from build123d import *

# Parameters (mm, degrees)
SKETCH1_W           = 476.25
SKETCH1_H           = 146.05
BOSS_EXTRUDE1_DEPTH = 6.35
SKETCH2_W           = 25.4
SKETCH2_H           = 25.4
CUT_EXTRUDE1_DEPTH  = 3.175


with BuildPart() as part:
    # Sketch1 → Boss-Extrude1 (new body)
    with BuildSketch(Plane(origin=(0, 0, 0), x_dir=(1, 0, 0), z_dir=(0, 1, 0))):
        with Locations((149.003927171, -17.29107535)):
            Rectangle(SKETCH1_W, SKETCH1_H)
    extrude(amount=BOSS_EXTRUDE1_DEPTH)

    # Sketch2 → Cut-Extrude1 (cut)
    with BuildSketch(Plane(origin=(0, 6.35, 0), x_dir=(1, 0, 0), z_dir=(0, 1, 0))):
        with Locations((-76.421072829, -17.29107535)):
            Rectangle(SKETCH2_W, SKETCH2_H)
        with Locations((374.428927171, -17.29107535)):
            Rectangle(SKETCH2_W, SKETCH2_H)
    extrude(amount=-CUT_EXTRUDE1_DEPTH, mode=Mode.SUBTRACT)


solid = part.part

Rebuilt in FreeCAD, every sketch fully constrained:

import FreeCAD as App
import Part
import Sketcher
Q = App.Units.Quantity


def add_polygon(sketch, points):
    """Adds a closed chain of lines whose ends are joined by coincident constraints."""
    first, n = sketch.GeometryCount, len(points)
    for a, b in zip(points, points[1:] + points[:1]):
        sketch.addGeometry(Part.LineSegment(App.Vector(*a, 0), App.Vector(*b, 0)), False)
    for i in range(n):
        sketch.addConstraint(Sketcher.Constraint("Coincident", first + i, 2, first + (i + 1) % n, 1))

doc = App.newDocument("Part")
body = doc.addObject("PartDesign::Body", "Body")

# Sketch on XZ plane
sketch1 = body.newObject("Sketcher::SketchObject", "Sketch")
sketch1.AttachmentSupport = (doc.getObject("XZ_Plane"), [""])
sketch1.MapMode = "FlatFace"
add_polygon(sketch1, [(-89, -56), (-89, 90), (387, 90), (387, -56)])  # lines 0-3
sketch1.addConstraint(Sketcher.Constraint("Vertical", 0))
sketch1.addConstraint(Sketcher.Constraint("Horizontal", 1))
sketch1.addConstraint(Sketcher.Constraint("Vertical", 2))
sketch1.addConstraint(Sketcher.Constraint("Horizontal", 3))
sketch1.addConstraint(Sketcher.Constraint("DistanceX", 1, 1, 1, 2, Q("18.75 in")))
sketch1.addConstraint(Sketcher.Constraint("DistanceY", 0, 1, 0, 2, Q("5.75 in")))
sketch1.addConstraint(Sketcher.Constraint("DistanceX", 0, 2, -1, 1, 89.121073))
sketch1.addConstraint(Sketcher.Constraint("DistanceY", -1, 1, 0, 2, 90.316075))
pad1 = body.newObject("PartDesign::Pad", "Pad")
pad1.Profile = sketch1
pad1.Length = Q("0.25 in")
pad1.Reversed = True

# Sketch on XZ plane
sketch2 = body.newObject("Sketcher::SketchObject", "Sketch001")
sketch2.AttachmentSupport = (doc.getObject("XZ_Plane"), [""])
sketch2.MapMode = "FlatFace"
sketch2.AttachmentOffset = App.Placement(App.Vector(0, 0, -0.25 * 25.4), App.Rotation())
add_polygon(sketch2, [(-89, 5), (-89, 30), (-64, 30), (-64, 5)])  # lines 0-3
add_polygon(sketch2, [(362, 5), (362, 30), (387, 30), (387, 5)])  # lines 4-7
sketch2.addConstraint(Sketcher.Constraint("Vertical", 0))
sketch2.addConstraint(Sketcher.Constraint("Horizontal", 1))
sketch2.addConstraint(Sketcher.Constraint("Vertical", 2))
sketch2.addConstraint(Sketcher.Constraint("Horizontal", 3))
sketch2.addConstraint(Sketcher.Constraint("Vertical", 4))
sketch2.addConstraint(Sketcher.Constraint("Horizontal", 5))
sketch2.addConstraint(Sketcher.Constraint("Vertical", 6))
sketch2.addConstraint(Sketcher.Constraint("Horizontal", 7))
sketch2.addConstraint(Sketcher.Constraint("Horizontal", 1, 2, 4, 2))
sketch2.addConstraint(Sketcher.Constraint("Horizontal", 3, 2, 6, 2))
sketch2.addConstraint(Sketcher.Constraint("Equal", 3, 5))
sketch2.addConstraint(Sketcher.Constraint("Equal", 7, 0))
sketch2.addConstraint(Sketcher.Constraint("DistanceX", 1, 1, 1, 2, Q("1 in")))
sketch2.addConstraint(Sketcher.Constraint("DistanceX", 1, 2, 4, 2, Q("16.75 in")))
sketch2.addConstraint(Sketcher.Constraint("DistanceX", 0, 2, -1, 1, 89.121073))
sketch2.addConstraint(Sketcher.Constraint("DistanceY", -1, 1, 0, 2, 29.991075))
pocket1 = body.newObject("PartDesign::Pocket", "Pocket")
pocket1.Profile = sketch2
pocket1.Length = Q("0.125 in")
pocket1.Reversed = True

doc.recompute()
